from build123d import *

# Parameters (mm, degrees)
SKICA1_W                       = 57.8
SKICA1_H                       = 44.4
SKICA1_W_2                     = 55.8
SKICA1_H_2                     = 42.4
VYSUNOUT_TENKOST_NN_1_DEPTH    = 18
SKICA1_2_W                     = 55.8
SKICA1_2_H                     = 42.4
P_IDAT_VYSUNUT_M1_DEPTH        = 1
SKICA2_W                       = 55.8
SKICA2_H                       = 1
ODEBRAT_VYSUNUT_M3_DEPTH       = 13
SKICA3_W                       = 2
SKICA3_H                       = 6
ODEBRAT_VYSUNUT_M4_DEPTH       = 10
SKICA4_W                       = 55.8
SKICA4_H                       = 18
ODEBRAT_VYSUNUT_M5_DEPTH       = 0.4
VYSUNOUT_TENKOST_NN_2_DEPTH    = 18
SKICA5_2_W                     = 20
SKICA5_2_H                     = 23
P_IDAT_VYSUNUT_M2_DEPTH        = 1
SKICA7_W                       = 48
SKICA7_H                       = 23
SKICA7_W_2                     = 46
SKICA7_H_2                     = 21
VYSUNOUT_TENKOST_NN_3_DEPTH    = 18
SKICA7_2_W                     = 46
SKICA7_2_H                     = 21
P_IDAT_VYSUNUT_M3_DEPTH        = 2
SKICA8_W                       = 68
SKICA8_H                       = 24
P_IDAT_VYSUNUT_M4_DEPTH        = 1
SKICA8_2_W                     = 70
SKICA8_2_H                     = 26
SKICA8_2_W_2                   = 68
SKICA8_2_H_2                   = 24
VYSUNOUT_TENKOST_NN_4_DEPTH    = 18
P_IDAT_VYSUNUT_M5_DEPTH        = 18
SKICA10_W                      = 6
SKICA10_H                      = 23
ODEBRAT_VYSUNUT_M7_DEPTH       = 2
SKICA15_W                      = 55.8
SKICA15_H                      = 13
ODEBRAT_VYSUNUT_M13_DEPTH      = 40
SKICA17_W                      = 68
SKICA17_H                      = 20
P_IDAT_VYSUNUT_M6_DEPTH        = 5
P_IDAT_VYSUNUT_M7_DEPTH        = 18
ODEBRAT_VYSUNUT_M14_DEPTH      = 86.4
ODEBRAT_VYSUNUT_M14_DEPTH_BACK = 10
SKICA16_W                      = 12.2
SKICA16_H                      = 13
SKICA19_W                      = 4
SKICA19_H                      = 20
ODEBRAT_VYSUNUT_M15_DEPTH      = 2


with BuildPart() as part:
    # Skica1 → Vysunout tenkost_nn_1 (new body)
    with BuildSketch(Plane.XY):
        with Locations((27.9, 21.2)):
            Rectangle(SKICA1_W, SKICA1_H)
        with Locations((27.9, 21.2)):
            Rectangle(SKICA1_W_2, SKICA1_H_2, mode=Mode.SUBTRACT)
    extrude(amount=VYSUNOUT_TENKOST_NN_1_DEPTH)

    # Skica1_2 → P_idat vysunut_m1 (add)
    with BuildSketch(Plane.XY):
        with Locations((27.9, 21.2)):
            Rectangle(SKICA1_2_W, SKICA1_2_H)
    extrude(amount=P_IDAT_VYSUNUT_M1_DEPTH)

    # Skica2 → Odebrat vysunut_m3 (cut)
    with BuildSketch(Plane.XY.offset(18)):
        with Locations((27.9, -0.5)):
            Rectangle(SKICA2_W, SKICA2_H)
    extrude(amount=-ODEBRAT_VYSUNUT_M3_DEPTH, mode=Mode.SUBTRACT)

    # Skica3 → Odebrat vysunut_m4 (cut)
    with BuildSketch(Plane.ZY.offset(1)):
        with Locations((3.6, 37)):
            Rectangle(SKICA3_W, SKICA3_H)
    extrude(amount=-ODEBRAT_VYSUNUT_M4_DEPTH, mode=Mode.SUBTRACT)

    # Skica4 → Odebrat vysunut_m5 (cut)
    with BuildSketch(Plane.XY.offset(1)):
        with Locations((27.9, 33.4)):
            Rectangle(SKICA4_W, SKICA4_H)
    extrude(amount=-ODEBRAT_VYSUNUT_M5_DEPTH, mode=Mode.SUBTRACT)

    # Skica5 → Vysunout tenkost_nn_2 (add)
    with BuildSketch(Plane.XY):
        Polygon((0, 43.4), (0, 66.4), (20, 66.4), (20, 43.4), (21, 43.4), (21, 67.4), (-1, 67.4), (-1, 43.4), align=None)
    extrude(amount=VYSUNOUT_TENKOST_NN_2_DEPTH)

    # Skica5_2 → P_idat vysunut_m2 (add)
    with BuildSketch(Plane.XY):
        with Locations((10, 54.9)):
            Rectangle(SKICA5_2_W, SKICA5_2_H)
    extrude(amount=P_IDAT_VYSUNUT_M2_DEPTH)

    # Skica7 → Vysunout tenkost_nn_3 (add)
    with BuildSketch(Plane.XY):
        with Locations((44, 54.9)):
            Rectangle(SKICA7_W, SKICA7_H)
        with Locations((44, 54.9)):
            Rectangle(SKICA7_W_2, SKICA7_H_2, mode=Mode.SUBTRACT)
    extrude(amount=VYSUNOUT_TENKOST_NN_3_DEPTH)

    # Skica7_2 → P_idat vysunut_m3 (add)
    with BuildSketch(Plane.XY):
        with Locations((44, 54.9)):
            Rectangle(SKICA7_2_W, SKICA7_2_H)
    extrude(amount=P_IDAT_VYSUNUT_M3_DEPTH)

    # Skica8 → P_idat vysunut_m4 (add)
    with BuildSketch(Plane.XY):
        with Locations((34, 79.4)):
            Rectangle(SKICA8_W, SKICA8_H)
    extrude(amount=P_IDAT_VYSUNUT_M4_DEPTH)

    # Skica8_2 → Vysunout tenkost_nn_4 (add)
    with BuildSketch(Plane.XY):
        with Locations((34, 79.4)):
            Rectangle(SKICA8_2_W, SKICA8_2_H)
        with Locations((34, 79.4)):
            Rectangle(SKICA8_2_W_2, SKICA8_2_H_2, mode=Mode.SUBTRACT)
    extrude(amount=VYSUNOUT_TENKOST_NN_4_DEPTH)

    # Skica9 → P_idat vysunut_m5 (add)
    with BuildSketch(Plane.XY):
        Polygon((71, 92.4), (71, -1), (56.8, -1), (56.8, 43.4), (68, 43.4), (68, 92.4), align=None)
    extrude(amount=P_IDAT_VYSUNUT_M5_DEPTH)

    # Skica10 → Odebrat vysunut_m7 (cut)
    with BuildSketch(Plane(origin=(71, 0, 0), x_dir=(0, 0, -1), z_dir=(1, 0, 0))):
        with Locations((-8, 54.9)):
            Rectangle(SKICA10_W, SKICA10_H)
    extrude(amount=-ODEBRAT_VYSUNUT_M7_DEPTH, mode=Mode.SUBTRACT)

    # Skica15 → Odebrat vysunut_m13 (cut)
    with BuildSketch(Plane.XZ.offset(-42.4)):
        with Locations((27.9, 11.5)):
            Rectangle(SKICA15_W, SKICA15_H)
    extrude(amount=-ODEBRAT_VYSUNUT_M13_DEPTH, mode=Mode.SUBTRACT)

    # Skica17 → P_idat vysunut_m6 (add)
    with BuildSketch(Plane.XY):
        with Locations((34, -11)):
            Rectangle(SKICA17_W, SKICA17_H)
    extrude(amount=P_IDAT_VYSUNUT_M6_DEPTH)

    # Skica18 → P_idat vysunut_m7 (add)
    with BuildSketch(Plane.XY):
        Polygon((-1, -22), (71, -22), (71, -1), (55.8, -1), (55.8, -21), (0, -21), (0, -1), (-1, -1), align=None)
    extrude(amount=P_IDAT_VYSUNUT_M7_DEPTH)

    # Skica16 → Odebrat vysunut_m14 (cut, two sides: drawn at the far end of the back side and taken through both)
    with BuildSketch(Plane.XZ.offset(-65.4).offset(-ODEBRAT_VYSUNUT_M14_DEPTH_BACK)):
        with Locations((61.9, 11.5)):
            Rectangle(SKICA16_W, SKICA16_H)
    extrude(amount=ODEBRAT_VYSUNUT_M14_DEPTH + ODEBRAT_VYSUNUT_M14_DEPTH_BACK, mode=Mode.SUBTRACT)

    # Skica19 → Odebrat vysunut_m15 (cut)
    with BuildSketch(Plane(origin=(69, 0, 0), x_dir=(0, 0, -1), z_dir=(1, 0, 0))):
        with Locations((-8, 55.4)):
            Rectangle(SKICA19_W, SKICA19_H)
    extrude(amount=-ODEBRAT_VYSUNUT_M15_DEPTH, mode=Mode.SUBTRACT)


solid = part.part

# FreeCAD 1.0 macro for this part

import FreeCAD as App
import Part
import Sketcher
Q = App.Units.Quantity

doc = App.newDocument("Part")
body = doc.addObject("PartDesign::Body", "Body")

sketch1 = body.newObject("Sketcher::SketchObject", "Sketch")
sketch1.AttachmentSupport = (doc.getObject("XY_Plane"), [""])
sketch1.MapMode = "FlatFace"
sketch1.addGeometry([
    Part.LineSegment(App.Vector(-1, 43, 0), App.Vector(-1, -1, 0)),
    Part.LineSegment(App.Vector(-1, -1, 0), App.Vector(57, -1, 0)),
    Part.LineSegment(App.Vector(57, -1, 0), App.Vector(57, 43, 0)),
    Part.LineSegment(App.Vector(57, 43, 0), App.Vector(-1, 43, 0)),
    Part.LineSegment(App.Vector(56, 0, 0), App.Vector(0, 0, 0)),
    Part.LineSegment(App.Vector(0, 0, 0), App.Vector(0, 42, 0)),
    Part.LineSegment(App.Vector(0, 42, 0), App.Vector(56, 42, 0)),
    Part.LineSegment(App.Vector(56, 42, 0), App.Vector(56, 0, 0)),
], False)
sketch1.addConstraint([
    Sketcher.Constraint("Coincident", 0, 2, 1, 1),
    Sketcher.Constraint("Coincident", 1, 2, 2, 1),
    Sketcher.Constraint("Coincident", 2, 2, 3, 1),
    Sketcher.Constraint("Coincident", 3, 2, 0, 1),
    Sketcher.Constraint("Coincident", 4, 2, 5, 1),
    Sketcher.Constraint("Coincident", 5, 2, 6, 1),
    Sketcher.Constraint("Coincident", 6, 2, 7, 1),
    Sketcher.Constraint("Coincident", 7, 2, 4, 1),
    Sketcher.Constraint("Vertical", 0),
    Sketcher.Constraint("Horizontal", 1),
    Sketcher.Constraint("Vertical", 2),
    Sketcher.Constraint("Horizontal", 3),
    Sketcher.Constraint("Horizontal", 4),
    Sketcher.Constraint("Vertical", 5),
    Sketcher.Constraint("Horizontal", 6),
    Sketcher.Constraint("Vertical", 7),
    Sketcher.Constraint("Coincident", 4, 2, -1, 1),
    Sketcher.Constraint("DistanceX", 1, 1, 1, 2, Q("57.8 mm")),
    Sketcher.Constraint("DistanceX", 4, 2, 4, 1, Q("55.8 mm")),
    Sketcher.Constraint("DistanceY", 0, 2, 0, 1, Q("44.4 mm")),
    Sketcher.Constraint("DistanceY", 5, 1, 5, 2, Q("42.4 mm")),
    Sketcher.Constraint("DistanceX", 0, 2, -1, 1, Q("1 mm")),
    Sketcher.Constraint("DistanceY", 0, 2, -1, 1, Q("1 mm")),
])
pad1 = body.newObject("PartDesign::Pad", "Pad")
pad1.Profile = sketch1
pad1.Length = 18

sketch2 = body.newObject("Sketcher::SketchObject", "Sketch001")
sketch2.AttachmentSupport = (doc.getObject("XY_Plane"), [""])
sketch2.MapMode = "FlatFace"
sketch2.addGeometry([
    Part.LineSegment(App.Vector(0, 42, 0), App.Vector(0, 0, 0)),
    Part.LineSegment(App.Vector(0, 0, 0), App.Vector(56, 0, 0)),
    Part.LineSegment(App.Vector(56, 0, 0), App.Vector(56, 42, 0)),
    Part.LineSegment(App.Vector(56, 42, 0), App.Vector(0, 42, 0)),
], False)
sketch2.addConstraint([
    Sketcher.Constraint("Coincident", 0, 2, 1, 1),
    Sketcher.Constraint("Coincident", 1, 2, 2, 1),
    Sketcher.Constraint("Coincident", 2, 2, 3, 1),
    Sketcher.Constraint("Coincident", 3, 2, 0, 1),
    Sketcher.Constraint("Vertical", 0),
    Sketcher.Constraint("Horizontal", 1),
    Sketcher.Constraint("Vertical", 2),
    Sketcher.Constraint("Horizontal", 3),
    Sketcher.Constraint("Coincident", 0, 2, -1, 1),
    Sketcher.Constraint("DistanceX", 1, 1, 1, 2, Q("55.8 mm")),
    Sketcher.Constraint("DistanceY", 0, 2, 0, 1, Q("42.4 mm")),
])
pad2 = body.newObject("PartDesign::Pad", "Pad001")
pad2.Profile = sketch2
pad2.Length = 1

sketch3 = body.newObject("Sketcher::SketchObject", "Sketch002")
sketch3.AttachmentSupport = (doc.getObject("XY_Plane"), [""])
sketch3.MapMode = "FlatFace"
sketch3.AttachmentOffset = App.Placement(App.Vector(0, 0, 18), App.Rotation())
sketch3.addGeometry([
    Part.LineSegment(App.Vector(0, 0, 0), App.Vector(0, -1, 0)),
    Part.LineSegment(App.Vector(0, -1, 0), App.Vector(55.8, -1, 0)),
    Part.LineSegment(App.Vector(55.8, -1, 0), App.Vector(55.8, 0, 0)),
    Part.LineSegment(App.Vector(55.8, 0, 0), App.Vector(0, 0, 0)),
], False)
sketch3.addConstraint([
    Sketcher.Constraint("Coincident", 0, 2, 1, 1),
    Sketcher.Constraint("Coincident", 1, 2, 2, 1),
    Sketcher.Constraint("Coincident", 2, 2, 3, 1),
    Sketcher.Constraint("Coincident", 3, 2, 0, 1),
    Sketcher.Constraint("Vertical", 0),
    Sketcher.Constraint("Horizontal", 1),
    Sketcher.Constraint("Vertical", 2),
    Sketcher.Constraint("Horizontal", 3),
    Sketcher.Constraint("Coincident", 3, 2, -1, 1),
    Sketcher.Constraint("DistanceY", 0, 2, 0, 1, Q("1 mm")),
    Sketcher.Constraint("DistanceX", 1, 1, 1, 2, Q("55.8 mm")),
])
pocket1 = body.newObject("PartDesign::Pocket", "Pocket")
pocket1.Profile = sketch3
pocket1.Length = 13

sketch4 = body.newObject("Sketcher::SketchObject", "Sketch003")
sketch4.AttachmentSupport = (doc.getObject("YZ_Plane"), [""])
sketch4.MapMode = "FlatFace"
sketch4.AttachmentOffset = App.Placement(App.Vector(0, 0, -1), App.Rotation())
sketch4.addGeometry([
    Part.LineSegment(App.Vector(40, 2.6, 0), App.Vector(34, 2.6, 0)),
    Part.LineSegment(App.Vector(34, 2.6, 0), App.Vector(34, 4.6, 0)),
    Part.LineSegment(App.Vector(34, 4.6, 0), App.Vector(40, 4.6, 0)),
    Part.LineSegment(App.Vector(40, 4.6, 0), App.Vector(40, 2.6, 0)),
], False)
sketch4.addConstraint([
    Sketcher.Constraint("Coincident", 0, 2, 1, 1),
    Sketcher.Constraint("Coincident", 1, 2, 2, 1),
    Sketcher.Constraint("Coincident", 2, 2, 3, 1),
    Sketcher.Constraint("Coincident", 3, 2, 0, 1),
    Sketcher.Constraint("Horizontal", 0),
    Sketcher.Constraint("Vertical", 1),
    Sketcher.Constraint("Horizontal", 2),
    Sketcher.Constraint("Vertical", 3),
    Sketcher.Constraint("DistanceX", 0, 2, 0, 1, Q("6 mm")),
    Sketcher.Constraint("DistanceY", 1, 1, 1, 2, Q("2 mm")),
    Sketcher.Constraint("DistanceX", -1, 1, 0, 2, Q("34 mm")),
    Sketcher.Constraint("DistanceY", -1, 1, 0, 2, Q("2.6 mm")),
])
pocket2 = body.newObject("PartDesign::Pocket", "Pocket001")
pocket2.Profile = sketch4
pocket2.Length = 10
pocket2.Reversed = True

sketch5 = body.newObject("Sketcher::SketchObject", "Sketch004")
sketch5.AttachmentSupport = (doc.getObject("XY_Plane"), [""])
sketch5.MapMode = "FlatFace"
sketch5.AttachmentOffset = App.Placement(App.Vector(0, 0, 1), App.Rotation())
sketch5.addGeometry([
    Part.LineSegment(App.Vector(0, 42, 0), App.Vector(0, 24, 0)),
    Part.LineSegment(App.Vector(0, 24, 0), App.Vector(56, 24, 0)),
    Part.LineSegment(App.Vector(56, 24, 0), App.Vector(56, 42, 0)),
    Part.LineSegment(App.Vector(56, 42, 0), App.Vector(0, 42, 0)),
], False)
sketch5.addConstraint([
    Sketcher.Constraint("Coincident", 0, 2, 1, 1),
    Sketcher.Constraint("Coincident", 1, 2, 2, 1),
    Sketcher.Constraint("Coincident", 2, 2, 3, 1),
    Sketcher.Constraint("Coincident", 3, 2, 0, 1),
    Sketcher.Constraint("Vertical", 0),
    Sketcher.Constraint("Horizontal", 1),
    Sketcher.Constraint("Vertical", 2),
    Sketcher.Constraint("Horizontal", 3),
    Sketcher.Constraint("PointOnObject", 0, 2, -2),
    Sketcher.Constraint("DistanceY", 0, 2, 0, 1, Q("18 mm")),
    Sketcher.Constraint("DistanceX", 1, 1, 1, 2, Q("55.8 mm")),
    Sketcher.Constraint("DistanceY", -1, 1, 0, 2, Q("24.4 mm")),
])
pocket3 = body.newObject("PartDesign::Pocket", "Pocket002")
pocket3.Profile = sketch5
pocket3.Length = 0.4

sketch6 = body.newObject("Sketcher::SketchObject", "Sketch005")
sketch6.AttachmentSupport = (doc.getObject("XY_Plane"), [""])
sketch6.MapMode = "FlatFace"
sketch6.addGeometry([
    Part.LineSegment(App.Vector(0, 43.4, 0), App.Vector(0, 66.4, 0)),
    Part.LineSegment(App.Vector(0, 66.4, 0), App.Vector(20, 66.4, 0)),
    Part.LineSegment(App.Vector(20, 66.4, 0), App.Vector(20, 43.4, 0)),
    Part.LineSegment(App.Vector(20, 43.4, 0), App.Vector(21, 43.4, 0)),
    Part.LineSegment(App.Vector(21, 43.4, 0), App.Vector(21, 67.4, 0)),
    Part.LineSegment(App.Vector(21, 67.4, 0), App.Vector(-1, 67.4, 0)),
    Part.LineSegment(App.Vector(-1, 67.4, 0), App.Vector(-1, 43.4, 0)),
    Part.LineSegment(App.Vector(-1, 43.4, 0), App.Vector(0, 43.4, 0)),
], False)
sketch6.addConstraint([
    Sketcher.Constraint("Coincident", 0, 2, 1, 1),
    Sketcher.Constraint("Coincident", 1, 2, 2, 1),
    Sketcher.Constraint("Coincident", 2, 2, 3, 1),
    Sketcher.Constraint("Coincident", 3, 2, 4, 1),
    Sketcher.Constraint("Coincident", 4, 2, 5, 1),
    Sketcher.Constraint("Coincident", 5, 2, 6, 1),
    Sketcher.Constraint("Coincident", 6, 2, 7, 1),
    Sketcher.Constraint("Coincident", 7, 2, 0, 1),
    Sketcher.Constraint("Vertical", 0),
    Sketcher.Constraint("Horizontal", 1),
    Sketcher.Constraint("Vertical", 2),
    Sketcher.Constraint("Horizontal", 3),
    Sketcher.Constraint("Vertical", 4),
    Sketcher.Constraint("Horizontal", 5),
    Sketcher.Constraint("Vertical", 6),
    Sketcher.Constraint("Horizontal", 7),
    Sketcher.Constraint("PointOnObject", 0, 2, -2),
    Sketcher.Constraint("Horizontal", 3, 2, 6, 2),
    Sketcher.Constraint("Equal", 3, 7),
    Sketcher.Constraint("DistanceX", 1, 1, 1, 2, Q("20 mm")),
    Sketcher.Constraint("DistanceX", 3, 1, 3, 2, Q("1 mm")),
    Sketcher.Constraint("DistanceY", 0, 1, 0, 2, Q("23 mm")),
    Sketcher.Constraint("DistanceY", 4, 1, 4, 2, Q("24 mm")),
    Sketcher.Constraint("DistanceY", -1, 1, 0, 2, Q("66.4 mm")),
])
pad3 = body.newObject("PartDesign::Pad", "Pad002")
pad3.Profile = sketch6
pad3.Length = 18

sketch7 = body.newObject("Sketcher::SketchObject", "Sketch006")
sketch7.AttachmentSupport = (doc.getObject("XY_Plane"), [""])
sketch7.MapMode = "FlatFace"
sketch7.addGeometry([
    Part.LineSegment(App.Vector(0, 66, 0), App.Vector(0, 43, 0)),
    Part.LineSegment(App.Vector(0, 43, 0), App.Vector(20, 43, 0)),
    Part.LineSegment(App.Vector(20, 43, 0), App.Vector(20, 66, 0)),
    Part.LineSegment(App.Vector(20, 66, 0), App.Vector(0, 66, 0)),
], False)
sketch7.addConstraint([
    Sketcher.Constraint("Coincident", 0, 2, 1, 1),
    Sketcher.Constraint("Coincident", 1, 2, 2, 1),
    Sketcher.Constraint("Coincident", 2, 2, 3, 1),
    Sketcher.Constraint("Coincident", 3, 2, 0, 1),
    Sketcher.Constraint("Vertical", 0),
    Sketcher.Constraint("Horizontal", 1),
    Sketcher.Constraint("Vertical", 2),
    Sketcher.Constraint("Horizontal", 3),
    Sketcher.Constraint("PointOnObject", 0, 2, -2),
    Sketcher.Constraint("DistanceX", 1, 1, 1, 2, Q("20 mm")),
    Sketcher.Constraint("DistanceY", 0, 2, 0, 1, Q("23 mm")),
    Sketcher.Constraint("DistanceY", -1, 1, 0, 2, Q("43.4 mm")),
])
pad4 = body.newObject("PartDesign::Pad", "Pad003")
pad4.Profile = sketch7
pad4.Length = 1

sketch8 = body.newObject("Sketcher::SketchObject", "Sketch007")
sketch8.AttachmentSupport = (doc.getObject("XY_Plane"), [""])
sketch8.MapMode = "FlatFace"
sketch8.addGeometry([
    Part.LineSegment(App.Vector(20, 66, 0), App.Vector(20, 43, 0)),
    Part.LineSegment(App.Vector(20, 43, 0), App.Vector(68, 43, 0)),
    Part.LineSegment(App.Vector(68, 43, 0), App.Vector(68, 66, 0)),
    Part.LineSegment(App.Vector(68, 66, 0), App.Vector(20, 66, 0)),
    Part.LineSegment(App.Vector(67, 44, 0), App.Vector(21, 44, 0)),
    Part.LineSegment(App.Vector(21, 44, 0), App.Vector(21, 65, 0)),
    Part.LineSegment(App.Vector(21, 65, 0), App.Vector(67, 65, 0)),
    Part.LineSegment(App.Vector(67, 65, 0), App.Vector(67, 44, 0)),
], False)
sketch8.addConstraint([
    Sketcher.Constraint("Coincident", 0, 2, 1, 1),
    Sketcher.Constraint("Coincident", 1, 2, 2, 1),
    Sketcher.Constraint("Coincident", 2, 2, 3, 1),
    Sketcher.Constraint("Coincident", 3, 2, 0, 1),
    Sketcher.Constraint("Coincident", 4, 2, 5, 1),
    Sketcher.Constraint("Coincident", 5, 2, 6, 1),
    Sketcher.Constraint("Coincident", 6, 2, 7, 1),
    Sketcher.Constraint("Coincident", 7, 2, 4, 1),
    Sketcher.Constraint("Vertical", 0),
    Sketcher.Constraint("Horizontal", 1),
    Sketcher.Constraint("Vertical", 2),
    Sketcher.Constraint("Horizontal", 3),
    Sketcher.Constraint("Horizontal", 4),
    Sketcher.Constraint("Vertical", 5),
    Sketcher.Constraint("Horizontal", 6),
    Sketcher.Constraint("Vertical", 7),
    Sketcher.Constraint("DistanceX", 1, 1, 1, 2, Q("48 mm")),
    Sketcher.Constraint("DistanceX", 4, 2, 4, 1, Q("46 mm")),
    Sketcher.Constraint("DistanceY", 0, 2, 0, 1, Q("23 mm")),
    Sketcher.Constraint("DistanceY", 5, 1, 5, 2, Q("21 mm")),
    Sketcher.Constraint("DistanceX", -1, 1, 0, 2, Q("20 mm")),
    Sketcher.Constraint("DistanceX", -1, 1, 4, 2, Q("21 mm")),
    Sketcher.Constraint("DistanceY", 0, 2, 4, 2, Q("1 mm")),
    Sketcher.Constraint("DistanceY", -1, 1, 0, 2, Q("43.4 mm")),
])
pad5 = body.newObject("PartDesign::Pad", "Pad004")
pad5.Profile = sketch8
pad5.Length = 18

sketch9 = body.newObject("Sketcher::SketchObject", "Sketch008")
sketch9.AttachmentSupport = (doc.getObject("XY_Plane"), [""])
sketch9.MapMode = "FlatFace"
sketch9.addGeometry([
    Part.LineSegment(App.Vector(21, 65, 0), App.Vector(21, 44, 0)),
    Part.LineSegment(App.Vector(21, 44, 0), App.Vector(67, 44, 0)),
    Part.LineSegment(App.Vector(67, 44, 0), App.Vector(67, 65, 0)),
    Part.LineSegment(App.Vector(67, 65, 0), App.Vector(21, 65, 0)),
], False)
sketch9.addConstraint([
    Sketcher.Constraint("Coincident", 0, 2, 1, 1),
    Sketcher.Constraint("Coincident", 1, 2, 2, 1),
    Sketcher.Constraint("Coincident", 2, 2, 3, 1),
    Sketcher.Constraint("Coincident", 3, 2, 0, 1),
    Sketcher.Constraint("Vertical", 0),
    Sketcher.Constraint("Horizontal", 1),
    Sketcher.Constraint("Vertical", 2),
    Sketcher.Constraint("Horizontal", 3),
    Sketcher.Constraint("DistanceX", 1, 1, 1, 2, Q("46 mm")),
    Sketcher.Constraint("DistanceY", 0, 2, 0, 1, Q("21 mm")),
    Sketcher.Constraint("DistanceX", -1, 1, 0, 2, Q("21 mm")),
    Sketcher.Constraint("DistanceY", -1, 1, 0, 2, Q("44.4 mm")),
])
pad6 = body.newObject("PartDesign::Pad", "Pad005")
pad6.Profile = sketch9
pad6.Length = 2

sketch10 = body.newObject("Sketcher::SketchObject", "Sketch009")
sketch10.AttachmentSupport = (doc.getObject("XY_Plane"), [""])
sketch10.MapMode = "FlatFace"
sketch10.addGeometry([
    Part.LineSegment(App.Vector(0, 91, 0), App.Vector(0, 67, 0)),
    Part.LineSegment(App.Vector(0, 67, 0), App.Vector(68, 67, 0)),
    Part.LineSegment(App.Vector(68, 67, 0), App.Vector(68, 91, 0)),
    Part.LineSegment(App.Vector(68, 91, 0), App.Vector(0, 91, 0)),
], False)
sketch10.addConstraint([
    Sketcher.Constraint("Coincident", 0, 2, 1, 1),
    Sketcher.Constraint("Coincident", 1, 2, 2, 1),
    Sketcher.Constraint("Coincident", 2, 2, 3, 1),
    Sketcher.Constraint("Coincident", 3, 2, 0, 1),
    Sketcher.Constraint("Vertical", 0),
    Sketcher.Constraint("Horizontal", 1),
    Sketcher.Constraint("Vertical", 2),
    Sketcher.Constraint("Horizontal", 3),
    Sketcher.Constraint("PointOnObject", 0, 2, -2),
    Sketcher.Constraint("DistanceX", 1, 1, 1, 2, Q("68 mm")),
    Sketcher.Constraint("DistanceY", 0, 2, 0, 1, Q("24 mm")),
    Sketcher.Constraint("DistanceY", -1, 1, 0, 2, Q("67.4 mm")),
])
pad7 = body.newObject("PartDesign::Pad", "Pad006")
pad7.Profile = sketch10
pad7.Length = 1

sketch11 = body.newObject("Sketcher::SketchObject", "Sketch010")
sketch11.AttachmentSupport = (doc.getObject("XY_Plane"), [""])
sketch11.MapMode = "FlatFace"
sketch11.addGeometry([
    Part.LineSegment(App.Vector(-1, 92, 0), App.Vector(-1, 66, 0)),
    Part.LineSegment(App.Vector(-1, 66, 0), App.Vector(69, 66, 0)),
    Part.LineSegment(App.Vector(69, 66, 0), App.Vector(69, 92, 0)),
    Part.LineSegment(App.Vector(69, 92, 0), App.Vector(-1, 92, 0)),
    Part.LineSegment(App.Vector(68, 67, 0), App.Vector(0, 67, 0)),
    Part.LineSegment(App.Vector(0, 67, 0), App.Vector(0, 91, 0)),
    Part.LineSegment(App.Vector(0, 91, 0), App.Vector(68, 91, 0)),
    Part.LineSegment(App.Vector(68, 91, 0), App.Vector(68, 67, 0)),
], False)
sketch11.addConstraint([
    Sketcher.Constraint("Coincident", 0, 2, 1, 1),
    Sketcher.Constraint("Coincident", 1, 2, 2, 1),
    Sketcher.Constraint("Coincident", 2, 2, 3, 1),
    Sketcher.Constraint("Coincident", 3, 2, 0, 1),
    Sketcher.Constraint("Coincident", 4, 2, 5, 1),
    Sketcher.Constraint("Coincident", 5, 2, 6, 1),
    Sketcher.Constraint("Coincident", 6, 2, 7, 1),
    Sketcher.Constraint("Coincident", 7, 2, 4, 1),
    Sketcher.Constraint("Vertical", 0),
    Sketcher.Constraint("Horizontal", 1),
    Sketcher.Constraint("Vertical", 2),
    Sketcher.Constraint("Horizontal", 3),
    Sketcher.Constraint("Horizontal", 4),
    Sketcher.Constraint("Vertical", 5),
    Sketcher.Constraint("Horizontal", 6),
    Sketcher.Constraint("Vertical", 7),
    Sketcher.Constraint("PointOnObject", 4, 2, -2),
    Sketcher.Constraint("DistanceX", 1, 1, 1, 2, Q("70 mm")),
    Sketcher.Constraint("DistanceX", 4, 2, 4, 1, Q("68 mm")),
    Sketcher.Constraint("DistanceY", 0, 2, 0, 1, Q("26 mm")),
    Sketcher.Constraint("DistanceY", 5, 1, 5, 2, Q("24 mm")),
    Sketcher.Constraint("DistanceX", 0, 2, -1, 1, Q("1 mm")),
    Sketcher.Constraint("DistanceY", 0, 2, 4, 2, Q("1 mm")),
    Sketcher.Constraint("DistanceY", -1, 1, 0, 2, Q("66.4 mm")),
])
pad8 = body.newObject("PartDesign::Pad", "Pad007")
pad8.Profile = sketch11
pad8.Length = 18

sketch12 = body.newObject("Sketcher::SketchObject", "Sketch011")
sketch12.AttachmentSupport = (doc.getObject("XY_Plane"), [""])
sketch12.MapMode = "FlatFace"
sketch12.addGeometry([
    Part.LineSegment(App.Vector(71, -1, 0), App.Vector(71, 92.4, 0)),
    Part.LineSegment(App.Vector(71, 92.4, 0), App.Vector(68, 92.4, 0)),
    Part.LineSegment(App.Vector(68, 92.4, 0), App.Vector(68, 43.4, 0)),
    Part.LineSegment(App.Vector(68, 43.4, 0), App.Vector(56.8, 43.4, 0)),
    Part.LineSegment(App.Vector(56.8, 43.4, 0), App.Vector(56.8, -1, 0)),
    Part.LineSegment(App.Vector(56.8, -1, 0), App.Vector(71, -1, 0)),
], False)
sketch12.addConstraint([
    Sketcher.Constraint("Coincident", 0, 2, 1, 1),
    Sketcher.Constraint("Coincident", 1, 2, 2, 1),
    Sketcher.Constraint("Coincident", 2, 2, 3, 1),
    Sketcher.Constraint("Coincident", 3, 2, 4, 1),
    Sketcher.Constraint("Coincident", 4, 2, 5, 1),
    Sketcher.Constraint("Coincident", 5, 2, 0, 1),
    Sketcher.Constraint("Vertical", 0),
    Sketcher.Constraint("Horizontal", 1),
    Sketcher.Constraint("Vertical", 2),
    Sketcher.Constraint("Horizontal", 3),
    Sketcher.Constraint("Vertical", 4),
    Sketcher.Constraint("Horizontal", 5),
    Sketcher.Constraint("DistanceX", 1, 2, 1, 1, Q("3 mm")),
    Sketcher.Constraint("DistanceY", 2, 2, 2, 1, Q("49 mm")),
    Sketcher.Constraint("DistanceX", 3, 2, 3, 1, Q("11.2 mm")),
    Sketcher.Constraint("DistanceY", 0, 1, 0, 2, Q("93.4 mm")),
    Sketcher.Constraint("DistanceX", -1, 1, 0, 2, Q("71 mm")),
    Sketcher.Constraint("DistanceY", 4, 2, -1, 1, Q("1 mm")),
])
pad9 = body.newObject("PartDesign::Pad", "Pad008")
pad9.Profile = sketch12
pad9.Length = 18

sketch13 = body.newObject("Sketcher::SketchObject", "Sketch012")
sketch13.AttachmentSupport = (doc.getObject("YZ_Plane"), [""])
sketch13.MapMode = "FlatFace"
sketch13.AttachmentOffset = App.Placement(App.Vector(0, 0, 71), App.Rotation())
sketch13.addGeometry([
    Part.LineSegment(App.Vector(66, 11, 0), App.Vector(43, 11, 0)),
    Part.LineSegment(App.Vector(43, 11, 0), App.Vector(43, 5, 0)),
    Part.LineSegment(App.Vector(43, 5, 0), App.Vector(66, 5, 0)),
    Part.LineSegment(App.Vector(66, 5, 0), App.Vector(66, 11, 0)),
], False)
sketch13.addConstraint([
    Sketcher.Constraint("Coincident", 0, 2, 1, 1),
    Sketcher.Constraint("Coincident", 1, 2, 2, 1),
    Sketcher.Constraint("Coincident", 2, 2, 3, 1),
    Sketcher.Constraint("Coincident", 3, 2, 0, 1),
    Sketcher.Constraint("Horizontal", 0),
    Sketcher.Constraint("Vertical", 1),
    Sketcher.Constraint("Horizontal", 2),
    Sketcher.Constraint("Vertical", 3),
    Sketcher.Constraint("DistanceX", 0, 2, 0, 1, Q("23 mm")),
    Sketcher.Constraint("DistanceY", 1, 2, 1, 1, Q("6 mm")),
    Sketcher.Constraint("DistanceY", -1, 1, 0, 2, Q("11 mm")),
    Sketcher.Constraint("DistanceX", -1, 1, 0, 2, Q("43.4 mm")),
])
pocket4 = body.newObject("PartDesign::Pocket", "Pocket003")
pocket4.Profile = sketch13
pocket4.Length = 2

sketch14 = body.newObject("Sketcher::SketchObject", "Sketch013")
sketch14.AttachmentSupport = (doc.getObject("XZ_Plane"), [""])
sketch14.MapMode = "FlatFace"
sketch14.AttachmentOffset = App.Placement(App.Vector(0, 0, -42.4), App.Rotation())
sketch14.addGeometry([
    Part.LineSegment(App.Vector(0, 18, 0), App.Vector(0, 5, 0)),
    Part.LineSegment(App.Vector(0, 5, 0), App.Vector(56, 5, 0)),
    Part.LineSegment(App.Vector(56, 5, 0), App.Vector(56, 18, 0)),
    Part.LineSegment(App.Vector(56, 18, 0), App.Vector(0, 18, 0)),
], False)
sketch14.addConstraint([
    Sketcher.Constraint("Coincident", 0, 2, 1, 1),
    Sketcher.Constraint("Coincident", 1, 2, 2, 1),
    Sketcher.Constraint("Coincident", 2, 2, 3, 1),
    Sketcher.Constraint("Coincident", 3, 2, 0, 1),
    Sketcher.Constraint("Vertical", 0),
    Sketcher.Constraint("Horizontal", 1),
    Sketcher.Constraint("Vertical", 2),
    Sketcher.Constraint("Horizontal", 3),
    Sketcher.Constraint("PointOnObject", 0, 2, -2),
    Sketcher.Constraint("DistanceY", 0, 2, 0, 1, Q("13 mm")),
    Sketcher.Constraint("DistanceX", 1, 1, 1, 2, Q("55.8 mm")),
    Sketcher.Constraint("DistanceY", -1, 1, 0, 2, Q("5 mm")),
])
pocket5 = body.newObject("PartDesign::Pocket", "Pocket004")
pocket5.Profile = sketch14
pocket5.Length = 40

sketch15 = body.newObject("Sketcher::SketchObject", "Sketch014")
sketch15.AttachmentSupport = (doc.getObject("XY_Plane"), [""])
sketch15.MapMode = "FlatFace"
sketch15.addGeometry([
    Part.LineSegment(App.Vector(0, -1, 0), App.Vector(0, -21, 0)),
    Part.LineSegment(App.Vector(0, -21, 0), App.Vector(68, -21, 0)),
    Part.LineSegment(App.Vector(68, -21, 0), App.Vector(68, -1, 0)),
    Part.LineSegment(App.Vector(68, -1, 0), App.Vector(0, -1, 0)),
], False)
sketch15.addConstraint([
    Sketcher.Constraint("Coincident", 0, 2, 1, 1),
    Sketcher.Constraint("Coincident", 1, 2, 2, 1),
    Sketcher.Constraint("Coincident", 2, 2, 3, 1),
    Sketcher.Constraint("Coincident", 3, 2, 0, 1),
    Sketcher.Constraint("Vertical", 0),
    Sketcher.Constraint("Horizontal", 1),
    Sketcher.Constraint("Vertical", 2),
    Sketcher.Constraint("Horizontal", 3),
    Sketcher.Constraint("PointOnObject", 0, 2, -2),
    Sketcher.Constraint("DistanceX", 1, 1, 1, 2, Q("68 mm")),
    Sketcher.Constraint("DistanceY", 0, 2, 0, 1, Q("20 mm")),
    Sketcher.Constraint("DistanceY", 0, 2, -1, 1, Q("21 mm")),
])
pad10 = body.newObject("PartDesign::Pad", "Pad009")
pad10.Profile = sketch15
pad10.Length = 5

sketch16 = body.newObject("Sketcher::SketchObject", "Sketch015")
sketch16.AttachmentSupport = (doc.getObject("XY_Plane"), [""])
sketch16.MapMode = "FlatFace"
sketch16.addGeometry([
    Part.LineSegment(App.Vector(-1, -22, 0), App.Vector(71, -22, 0)),
    Part.LineSegment(App.Vector(71, -22, 0), App.Vector(71, -1, 0)),
    Part.LineSegment(App.Vector(71, -1, 0), App.Vector(55.8, -1, 0)),
    Part.LineSegment(App.Vector(55.8, -1, 0), App.Vector(55.8, -21, 0)),
    Part.LineSegment(App.Vector(55.8, -21, 0), App.Vector(0, -21, 0)),
    Part.LineSegment(App.Vector(0, -21, 0), App.Vector(0, -1, 0)),
    Part.LineSegment(App.Vector(0, -1, 0), App.Vector(-1, -1, 0)),
    Part.LineSegment(App.Vector(-1, -1, 0), App.Vector(-1, -22, 0)),
], False)
sketch16.addConstraint([
    Sketcher.Constraint("Coincident", 0, 2, 1, 1),
    Sketcher.Constraint("Coincident", 1, 2, 2, 1),
    Sketcher.Constraint("Coincident", 2, 2, 3, 1),
    Sketcher.Constraint("Coincident", 3, 2, 4, 1),
    Sketcher.Constraint("Coincident", 4, 2, 5, 1),
    Sketcher.Constraint("Coincident", 5, 2, 6, 1),
    Sketcher.Constraint("Coincident", 6, 2, 7, 1),
    Sketcher.Constraint("Coincident", 7, 2, 0, 1),
    Sketcher.Constraint("Horizontal", 0),
    Sketcher.Constraint("Vertical", 1),
    Sketcher.Constraint("Horizontal", 2),
    Sketcher.Constraint("Vertical", 3),
    Sketcher.Constraint("Horizontal", 4),
    Sketcher.Constraint("Vertical", 5),
    Sketcher.Constraint("Horizontal", 6),
    Sketcher.Constraint("Vertical", 7),
    Sketcher.Constraint("PointOnObject", 4, 2, -2),
    Sketcher.Constraint("Horizontal", 2, 2, 5, 2),
    Sketcher.Constraint("DistanceX", 0, 1, 0, 2, Q("72 mm")),
    Sketcher.Constraint("DistanceX", 6, 2, 6, 1, Q("1 mm")),
    Sketcher.Constraint("DistanceY", 1, 1, 1, 2, Q("21 mm")),
    Sketcher.Constraint("DistanceY", 3, 2, 3, 1, Q("20 mm")),
    Sketcher.Constraint("DistanceX", 2, 2, 2, 1, Q("15.2 mm")),
    Sketcher.Constraint("DistanceY", 0, 2, -1, 1, Q("22 mm")),
])
pad11 = body.newObject("PartDesign::Pad", "Pad010")
pad11.Profile = sketch16
pad11.Length = 18

sketch17 = body.newObject("Sketcher::SketchObject", "Sketch016")
sketch17.AttachmentSupport = (doc.getObject("XZ_Plane"), [""])
sketch17.MapMode = "FlatFace"
sketch17.AttachmentOffset = App.Placement(App.Vector(0, 0, -65.4), App.Rotation())
sketch17.addGeometry([
    Part.LineSegment(App.Vector(56, 18, 0), App.Vector(56, 5, 0)),
    Part.LineSegment(App.Vector(56, 5, 0), App.Vector(68, 5, 0)),
    Part.LineSegment(App.Vector(68, 5, 0), App.Vector(68, 18, 0)),
    Part.LineSegment(App.Vector(68, 18, 0), App.Vector(56, 18, 0)),
], False)
sketch17.addConstraint([
    Sketcher.Constraint("Coincident", 0, 2, 1, 1),
    Sketcher.Constraint("Coincident", 1, 2, 2, 1),
    Sketcher.Constraint("Coincident", 2, 2, 3, 1),
    Sketcher.Constraint("Coincident", 3, 2, 0, 1),
    Sketcher.Constraint("Vertical", 0),
    Sketcher.Constraint("Horizontal", 1),
    Sketcher.Constraint("Vertical", 2),
    Sketcher.Constraint("Horizontal", 3),
    Sketcher.Constraint("DistanceY", 0, 2, 0, 1, Q("13 mm")),
    Sketcher.Constraint("DistanceX", 1, 1, 1, 2, Q("12.2 mm")),
    Sketcher.Constraint("DistanceY", -1, 1, 0, 2, Q("5 mm")),
    Sketcher.Constraint("DistanceX", -1, 1, 1, 2, Q("68 mm")),
])
pocket6 = body.newObject("PartDesign::Pocket", "Pocket005")
pocket6.Profile = sketch17
pocket6.Type = "TwoLengths"
pocket6.Length = 86.4
pocket6.Length2 = 10
pocket6.Reversed = True

sketch18 = body.newObject("Sketcher::SketchObject", "Sketch017")
sketch18.AttachmentSupport = (doc.getObject("YZ_Plane"), [""])
sketch18.MapMode = "FlatFace"
sketch18.AttachmentOffset = App.Placement(App.Vector(0, 0, 69), App.Rotation())
sketch18.addGeometry([
    Part.LineSegment(App.Vector(65.4, 10, 0), App.Vector(45.4, 10, 0)),
    Part.LineSegment(App.Vector(45.4, 10, 0), App.Vector(45.4, 6, 0)),
    Part.LineSegment(App.Vector(45.4, 6, 0), App.Vector(65.4, 6, 0)),
    Part.LineSegment(App.Vector(65.4, 6, 0), App.Vector(65.4, 10, 0)),
], False)
sketch18.addConstraint([
    Sketcher.Constraint("Coincident", 0, 2, 1, 1),
    Sketcher.Constraint("Coincident", 1, 2, 2, 1),
    Sketcher.Constraint("Coincident", 2, 2, 3, 1),
    Sketcher.Constraint("Coincident", 3, 2, 0, 1),
    Sketcher.Constraint("Horizontal", 0),
    Sketcher.Constraint("Vertical", 1),
    Sketcher.Constraint("Horizontal", 2),
    Sketcher.Constraint("Vertical", 3),
    Sketcher.Constraint("DistanceX", 0, 2, 0, 1, Q("20 mm")),
    Sketcher.Constraint("DistanceY", 1, 2, 1, 1, Q("4 mm")),
    Sketcher.Constraint("DistanceY", -1, 1, 0, 2, Q("10 mm")),
    Sketcher.Constraint("DistanceX", -1, 1, 0, 2, Q("45.4 mm")),
])
pocket7 = body.newObject("PartDesign::Pocket", "Pocket006")
pocket7.Profile = sketch18
pocket7.Length = 2

doc.recompute()
